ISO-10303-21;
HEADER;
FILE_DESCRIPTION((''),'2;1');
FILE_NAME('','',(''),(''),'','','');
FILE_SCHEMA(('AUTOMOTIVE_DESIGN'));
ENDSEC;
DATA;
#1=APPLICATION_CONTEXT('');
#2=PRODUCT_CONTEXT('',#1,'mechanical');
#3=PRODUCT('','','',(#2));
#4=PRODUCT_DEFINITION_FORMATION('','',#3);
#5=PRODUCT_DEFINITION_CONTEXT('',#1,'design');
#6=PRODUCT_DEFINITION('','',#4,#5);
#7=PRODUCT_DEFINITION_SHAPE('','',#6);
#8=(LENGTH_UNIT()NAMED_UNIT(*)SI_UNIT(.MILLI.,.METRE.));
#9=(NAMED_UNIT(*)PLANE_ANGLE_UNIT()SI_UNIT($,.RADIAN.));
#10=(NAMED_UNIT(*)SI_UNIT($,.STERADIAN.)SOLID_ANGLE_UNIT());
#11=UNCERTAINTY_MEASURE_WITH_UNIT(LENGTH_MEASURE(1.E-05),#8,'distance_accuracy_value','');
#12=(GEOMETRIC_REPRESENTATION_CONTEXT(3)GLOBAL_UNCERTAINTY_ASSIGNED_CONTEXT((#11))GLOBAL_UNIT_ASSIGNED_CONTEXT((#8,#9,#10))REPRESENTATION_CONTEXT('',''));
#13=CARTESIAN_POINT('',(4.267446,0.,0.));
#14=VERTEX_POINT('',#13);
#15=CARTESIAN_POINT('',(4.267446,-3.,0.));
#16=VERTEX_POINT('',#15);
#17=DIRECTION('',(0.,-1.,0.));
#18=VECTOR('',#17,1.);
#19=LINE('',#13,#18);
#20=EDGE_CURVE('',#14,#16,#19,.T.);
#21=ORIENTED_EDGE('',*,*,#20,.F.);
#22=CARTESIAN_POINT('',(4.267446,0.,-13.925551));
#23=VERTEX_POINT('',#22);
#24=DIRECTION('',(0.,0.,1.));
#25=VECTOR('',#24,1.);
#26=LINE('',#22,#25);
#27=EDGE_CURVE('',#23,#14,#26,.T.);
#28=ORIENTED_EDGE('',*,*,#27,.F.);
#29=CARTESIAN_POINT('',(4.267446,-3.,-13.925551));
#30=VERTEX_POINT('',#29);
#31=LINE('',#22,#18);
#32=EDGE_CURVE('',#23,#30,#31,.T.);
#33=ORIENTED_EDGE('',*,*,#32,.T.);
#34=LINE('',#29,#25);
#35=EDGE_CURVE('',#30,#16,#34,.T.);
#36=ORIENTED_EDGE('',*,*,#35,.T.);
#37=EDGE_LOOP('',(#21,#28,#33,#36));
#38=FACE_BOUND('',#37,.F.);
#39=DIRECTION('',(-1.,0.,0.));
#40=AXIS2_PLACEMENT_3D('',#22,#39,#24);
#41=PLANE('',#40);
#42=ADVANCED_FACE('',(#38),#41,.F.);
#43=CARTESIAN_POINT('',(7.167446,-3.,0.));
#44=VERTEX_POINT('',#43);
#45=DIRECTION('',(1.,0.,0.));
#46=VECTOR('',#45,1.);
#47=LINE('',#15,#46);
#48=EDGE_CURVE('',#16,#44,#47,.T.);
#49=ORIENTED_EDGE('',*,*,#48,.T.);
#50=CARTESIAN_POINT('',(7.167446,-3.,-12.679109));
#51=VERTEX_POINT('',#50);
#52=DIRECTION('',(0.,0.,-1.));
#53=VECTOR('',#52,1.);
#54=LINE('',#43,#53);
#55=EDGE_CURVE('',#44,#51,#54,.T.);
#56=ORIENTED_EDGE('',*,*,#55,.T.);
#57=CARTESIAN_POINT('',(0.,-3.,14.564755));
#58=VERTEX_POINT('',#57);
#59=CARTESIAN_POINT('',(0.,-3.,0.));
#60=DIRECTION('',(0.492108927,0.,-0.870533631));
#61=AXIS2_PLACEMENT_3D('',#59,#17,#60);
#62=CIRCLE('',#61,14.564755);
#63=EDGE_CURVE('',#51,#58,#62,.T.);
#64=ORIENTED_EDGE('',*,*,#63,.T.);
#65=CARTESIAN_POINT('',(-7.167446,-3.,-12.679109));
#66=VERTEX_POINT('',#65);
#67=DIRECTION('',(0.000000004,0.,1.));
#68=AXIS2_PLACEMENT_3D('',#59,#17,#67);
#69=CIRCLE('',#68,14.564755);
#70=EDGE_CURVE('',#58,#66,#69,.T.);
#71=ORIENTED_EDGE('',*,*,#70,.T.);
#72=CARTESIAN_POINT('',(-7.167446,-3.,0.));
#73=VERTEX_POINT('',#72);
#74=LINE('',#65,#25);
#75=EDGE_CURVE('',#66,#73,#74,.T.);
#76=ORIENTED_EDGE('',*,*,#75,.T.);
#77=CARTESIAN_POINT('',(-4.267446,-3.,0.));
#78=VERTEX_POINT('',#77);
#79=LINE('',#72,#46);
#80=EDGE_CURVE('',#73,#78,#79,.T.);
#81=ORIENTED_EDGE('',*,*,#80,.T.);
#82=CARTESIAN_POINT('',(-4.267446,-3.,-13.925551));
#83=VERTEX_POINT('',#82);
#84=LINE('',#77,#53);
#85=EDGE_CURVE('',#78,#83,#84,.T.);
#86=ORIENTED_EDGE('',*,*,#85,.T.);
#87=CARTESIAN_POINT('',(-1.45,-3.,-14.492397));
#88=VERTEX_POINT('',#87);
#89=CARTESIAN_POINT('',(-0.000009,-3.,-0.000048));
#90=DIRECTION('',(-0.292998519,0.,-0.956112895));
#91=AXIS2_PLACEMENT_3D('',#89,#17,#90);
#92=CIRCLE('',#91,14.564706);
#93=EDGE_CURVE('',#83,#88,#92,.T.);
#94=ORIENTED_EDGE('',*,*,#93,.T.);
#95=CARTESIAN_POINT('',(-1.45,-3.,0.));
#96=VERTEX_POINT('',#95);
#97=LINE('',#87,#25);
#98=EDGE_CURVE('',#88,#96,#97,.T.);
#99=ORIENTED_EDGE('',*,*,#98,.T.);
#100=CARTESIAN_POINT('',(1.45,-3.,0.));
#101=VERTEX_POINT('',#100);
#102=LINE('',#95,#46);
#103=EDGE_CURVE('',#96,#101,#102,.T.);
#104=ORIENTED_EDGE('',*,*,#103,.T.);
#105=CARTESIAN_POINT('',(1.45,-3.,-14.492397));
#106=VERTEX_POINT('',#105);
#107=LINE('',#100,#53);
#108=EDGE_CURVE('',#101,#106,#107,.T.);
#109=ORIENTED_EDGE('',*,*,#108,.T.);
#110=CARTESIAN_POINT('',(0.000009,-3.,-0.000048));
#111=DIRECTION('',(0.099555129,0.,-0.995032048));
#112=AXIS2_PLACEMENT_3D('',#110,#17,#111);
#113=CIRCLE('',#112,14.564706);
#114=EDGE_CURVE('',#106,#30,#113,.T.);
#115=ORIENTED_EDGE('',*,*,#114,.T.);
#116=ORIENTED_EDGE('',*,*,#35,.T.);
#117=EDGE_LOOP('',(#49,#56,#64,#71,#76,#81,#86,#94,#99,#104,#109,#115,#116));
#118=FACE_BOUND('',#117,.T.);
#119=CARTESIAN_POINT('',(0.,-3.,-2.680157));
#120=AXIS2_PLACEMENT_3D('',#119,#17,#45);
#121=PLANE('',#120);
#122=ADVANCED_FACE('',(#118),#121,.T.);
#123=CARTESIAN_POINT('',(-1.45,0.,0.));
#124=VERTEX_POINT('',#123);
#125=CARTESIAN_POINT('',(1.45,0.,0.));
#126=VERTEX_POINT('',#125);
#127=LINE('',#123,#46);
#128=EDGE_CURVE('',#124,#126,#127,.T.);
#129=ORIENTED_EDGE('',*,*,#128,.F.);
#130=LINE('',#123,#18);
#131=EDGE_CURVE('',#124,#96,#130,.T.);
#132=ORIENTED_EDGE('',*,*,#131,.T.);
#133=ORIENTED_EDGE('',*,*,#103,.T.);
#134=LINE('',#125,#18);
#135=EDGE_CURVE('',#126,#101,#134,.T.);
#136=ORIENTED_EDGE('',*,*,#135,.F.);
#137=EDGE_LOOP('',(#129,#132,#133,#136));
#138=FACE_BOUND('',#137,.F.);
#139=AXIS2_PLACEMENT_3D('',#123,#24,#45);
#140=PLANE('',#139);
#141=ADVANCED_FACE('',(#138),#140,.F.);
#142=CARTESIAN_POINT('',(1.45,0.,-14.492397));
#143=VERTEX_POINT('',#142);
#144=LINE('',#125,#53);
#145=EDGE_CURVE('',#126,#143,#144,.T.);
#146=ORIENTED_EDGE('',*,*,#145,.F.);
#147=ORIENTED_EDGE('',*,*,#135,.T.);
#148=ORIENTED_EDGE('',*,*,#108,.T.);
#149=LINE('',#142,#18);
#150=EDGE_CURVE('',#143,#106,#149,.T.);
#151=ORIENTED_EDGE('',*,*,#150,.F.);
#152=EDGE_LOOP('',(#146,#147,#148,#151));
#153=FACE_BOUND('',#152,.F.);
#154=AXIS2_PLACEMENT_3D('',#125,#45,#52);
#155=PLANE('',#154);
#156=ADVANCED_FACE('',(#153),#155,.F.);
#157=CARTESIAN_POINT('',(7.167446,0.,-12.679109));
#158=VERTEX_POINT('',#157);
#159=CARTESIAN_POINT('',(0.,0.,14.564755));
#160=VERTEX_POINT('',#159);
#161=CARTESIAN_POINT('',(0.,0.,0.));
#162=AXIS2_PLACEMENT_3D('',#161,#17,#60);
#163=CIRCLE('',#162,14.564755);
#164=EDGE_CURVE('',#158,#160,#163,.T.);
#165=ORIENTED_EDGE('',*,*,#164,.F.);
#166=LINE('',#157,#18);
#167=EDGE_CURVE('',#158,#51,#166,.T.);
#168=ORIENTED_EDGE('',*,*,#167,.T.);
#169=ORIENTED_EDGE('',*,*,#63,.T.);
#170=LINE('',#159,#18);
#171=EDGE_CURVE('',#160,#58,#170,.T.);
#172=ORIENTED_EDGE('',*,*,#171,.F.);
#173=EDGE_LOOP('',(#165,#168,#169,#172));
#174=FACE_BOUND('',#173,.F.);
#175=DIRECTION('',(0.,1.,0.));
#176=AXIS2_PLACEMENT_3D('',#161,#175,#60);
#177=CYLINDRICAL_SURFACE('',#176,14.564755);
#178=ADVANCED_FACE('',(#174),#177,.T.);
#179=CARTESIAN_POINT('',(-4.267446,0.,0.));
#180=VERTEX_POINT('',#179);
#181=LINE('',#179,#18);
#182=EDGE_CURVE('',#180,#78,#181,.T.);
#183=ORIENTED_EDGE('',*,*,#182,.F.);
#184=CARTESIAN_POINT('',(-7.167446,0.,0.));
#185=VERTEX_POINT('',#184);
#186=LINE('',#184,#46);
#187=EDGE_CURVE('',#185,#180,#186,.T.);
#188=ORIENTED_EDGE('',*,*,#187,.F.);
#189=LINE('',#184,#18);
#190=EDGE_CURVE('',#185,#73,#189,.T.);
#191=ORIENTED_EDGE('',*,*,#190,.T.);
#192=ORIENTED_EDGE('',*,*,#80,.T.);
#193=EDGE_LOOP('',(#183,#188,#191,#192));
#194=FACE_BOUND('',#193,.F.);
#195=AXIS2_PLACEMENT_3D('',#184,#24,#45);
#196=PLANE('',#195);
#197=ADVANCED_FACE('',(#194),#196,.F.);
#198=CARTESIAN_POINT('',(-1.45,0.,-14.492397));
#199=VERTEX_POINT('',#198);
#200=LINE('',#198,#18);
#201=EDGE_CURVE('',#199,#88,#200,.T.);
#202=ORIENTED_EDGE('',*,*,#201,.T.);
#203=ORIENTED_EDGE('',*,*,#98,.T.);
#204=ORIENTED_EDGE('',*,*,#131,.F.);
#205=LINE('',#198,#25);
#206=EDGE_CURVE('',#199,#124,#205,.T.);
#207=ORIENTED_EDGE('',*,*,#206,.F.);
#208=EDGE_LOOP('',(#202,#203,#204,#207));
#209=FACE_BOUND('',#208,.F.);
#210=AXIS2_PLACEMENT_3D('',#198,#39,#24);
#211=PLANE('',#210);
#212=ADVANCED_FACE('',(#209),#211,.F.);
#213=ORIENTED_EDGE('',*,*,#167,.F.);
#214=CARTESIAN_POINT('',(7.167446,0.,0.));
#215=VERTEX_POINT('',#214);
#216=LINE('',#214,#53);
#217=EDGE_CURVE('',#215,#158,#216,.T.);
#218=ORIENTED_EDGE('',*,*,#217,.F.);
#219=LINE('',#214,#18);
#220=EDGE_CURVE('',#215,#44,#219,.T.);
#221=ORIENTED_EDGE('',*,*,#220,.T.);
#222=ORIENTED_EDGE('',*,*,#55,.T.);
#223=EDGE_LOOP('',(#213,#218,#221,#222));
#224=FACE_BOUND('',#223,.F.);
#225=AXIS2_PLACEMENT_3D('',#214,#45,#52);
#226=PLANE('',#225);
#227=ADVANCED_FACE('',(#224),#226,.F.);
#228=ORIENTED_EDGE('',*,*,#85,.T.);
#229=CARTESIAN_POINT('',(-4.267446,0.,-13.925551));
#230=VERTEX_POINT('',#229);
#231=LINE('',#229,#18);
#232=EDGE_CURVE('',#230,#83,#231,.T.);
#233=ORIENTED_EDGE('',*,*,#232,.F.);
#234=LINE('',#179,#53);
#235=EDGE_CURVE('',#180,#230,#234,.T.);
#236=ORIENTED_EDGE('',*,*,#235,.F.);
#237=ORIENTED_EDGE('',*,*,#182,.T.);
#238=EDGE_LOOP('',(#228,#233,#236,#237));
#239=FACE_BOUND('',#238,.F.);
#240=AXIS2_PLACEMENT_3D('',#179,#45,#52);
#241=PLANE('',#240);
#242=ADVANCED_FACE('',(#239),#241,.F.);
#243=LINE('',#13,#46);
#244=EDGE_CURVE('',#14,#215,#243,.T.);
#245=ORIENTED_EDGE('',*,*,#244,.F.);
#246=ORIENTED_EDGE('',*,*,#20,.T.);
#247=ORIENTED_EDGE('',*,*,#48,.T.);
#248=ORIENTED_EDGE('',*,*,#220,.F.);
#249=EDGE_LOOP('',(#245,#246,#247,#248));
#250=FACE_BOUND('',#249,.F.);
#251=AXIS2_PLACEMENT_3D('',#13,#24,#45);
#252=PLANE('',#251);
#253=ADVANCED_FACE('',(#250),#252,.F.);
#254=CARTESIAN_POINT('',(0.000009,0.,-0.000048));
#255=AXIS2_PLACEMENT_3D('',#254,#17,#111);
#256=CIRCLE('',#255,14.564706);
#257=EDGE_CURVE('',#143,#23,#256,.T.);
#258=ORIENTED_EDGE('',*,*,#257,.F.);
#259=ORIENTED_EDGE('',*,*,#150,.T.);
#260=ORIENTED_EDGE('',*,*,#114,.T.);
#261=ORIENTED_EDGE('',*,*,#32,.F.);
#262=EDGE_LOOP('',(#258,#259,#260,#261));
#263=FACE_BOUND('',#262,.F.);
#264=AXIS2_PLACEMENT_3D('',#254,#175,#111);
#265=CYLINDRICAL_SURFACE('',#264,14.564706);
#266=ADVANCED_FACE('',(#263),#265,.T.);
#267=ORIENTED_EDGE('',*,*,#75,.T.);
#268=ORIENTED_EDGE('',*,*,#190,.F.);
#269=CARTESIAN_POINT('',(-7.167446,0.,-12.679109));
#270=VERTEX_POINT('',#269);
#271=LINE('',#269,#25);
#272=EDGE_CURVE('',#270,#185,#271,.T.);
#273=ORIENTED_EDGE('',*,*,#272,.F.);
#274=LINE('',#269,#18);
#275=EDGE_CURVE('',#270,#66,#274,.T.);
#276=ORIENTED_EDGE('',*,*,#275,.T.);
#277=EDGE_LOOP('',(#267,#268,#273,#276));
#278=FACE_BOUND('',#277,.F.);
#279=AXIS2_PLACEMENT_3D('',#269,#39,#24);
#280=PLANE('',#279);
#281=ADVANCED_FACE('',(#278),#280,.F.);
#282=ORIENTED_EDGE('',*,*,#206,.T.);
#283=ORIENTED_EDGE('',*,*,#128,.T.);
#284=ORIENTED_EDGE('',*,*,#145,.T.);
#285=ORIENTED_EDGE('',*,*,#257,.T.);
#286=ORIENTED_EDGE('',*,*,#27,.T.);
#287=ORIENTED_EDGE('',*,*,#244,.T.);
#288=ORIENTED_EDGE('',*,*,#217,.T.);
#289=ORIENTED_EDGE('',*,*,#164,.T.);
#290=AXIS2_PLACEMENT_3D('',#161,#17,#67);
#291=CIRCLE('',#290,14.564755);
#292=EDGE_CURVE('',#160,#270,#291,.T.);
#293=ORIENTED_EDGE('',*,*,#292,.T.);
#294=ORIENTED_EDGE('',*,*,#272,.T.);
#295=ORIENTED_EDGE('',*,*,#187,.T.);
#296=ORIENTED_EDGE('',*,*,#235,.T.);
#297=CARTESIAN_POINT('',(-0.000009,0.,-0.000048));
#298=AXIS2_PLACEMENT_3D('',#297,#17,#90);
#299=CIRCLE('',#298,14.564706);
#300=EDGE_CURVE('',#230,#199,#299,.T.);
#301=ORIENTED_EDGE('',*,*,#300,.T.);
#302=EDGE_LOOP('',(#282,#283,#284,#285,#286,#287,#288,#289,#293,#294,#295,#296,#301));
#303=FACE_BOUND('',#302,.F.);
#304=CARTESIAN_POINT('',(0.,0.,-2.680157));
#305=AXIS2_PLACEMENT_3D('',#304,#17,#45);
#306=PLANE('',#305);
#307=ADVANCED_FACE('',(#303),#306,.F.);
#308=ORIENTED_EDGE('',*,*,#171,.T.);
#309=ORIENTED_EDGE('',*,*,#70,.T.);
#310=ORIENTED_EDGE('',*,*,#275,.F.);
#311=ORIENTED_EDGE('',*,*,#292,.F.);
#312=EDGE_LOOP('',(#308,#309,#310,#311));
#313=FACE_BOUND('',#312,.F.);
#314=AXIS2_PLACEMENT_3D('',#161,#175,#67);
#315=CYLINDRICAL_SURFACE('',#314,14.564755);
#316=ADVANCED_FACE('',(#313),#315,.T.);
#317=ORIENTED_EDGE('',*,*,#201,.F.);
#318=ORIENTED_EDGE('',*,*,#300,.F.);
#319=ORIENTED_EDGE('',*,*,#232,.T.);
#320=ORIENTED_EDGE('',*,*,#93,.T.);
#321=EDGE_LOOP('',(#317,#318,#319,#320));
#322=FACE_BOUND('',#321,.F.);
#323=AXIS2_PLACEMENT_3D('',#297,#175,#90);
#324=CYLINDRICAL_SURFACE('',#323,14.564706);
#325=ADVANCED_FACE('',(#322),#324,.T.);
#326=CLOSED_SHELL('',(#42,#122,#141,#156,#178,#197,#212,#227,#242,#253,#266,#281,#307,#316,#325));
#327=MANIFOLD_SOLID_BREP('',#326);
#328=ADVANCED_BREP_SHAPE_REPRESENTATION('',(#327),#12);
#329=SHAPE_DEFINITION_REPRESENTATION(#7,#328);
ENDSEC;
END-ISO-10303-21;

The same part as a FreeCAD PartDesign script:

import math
import FreeCAD as App
import Part
import Sketcher

V = App.Vector
Q = App.Units.Quantity

doc = App.newDocument("Part")
body = doc.addObject("PartDesign::Body", "Body")

# Sketch on XZ plane
sketch1 = doc.addObject("Sketcher::SketchObject", "Sketch")
body.addObject(sketch1)
sketch1.AttachmentSupport = (doc.XZ_Plane, [""])
sketch1.MapMode = "FlatFace"
sketch1.addGeometry(Part.ArcOfCircle(Part.Circle(V(0, 0, 0), V(0, 0, 1), 14.564755), math.radians(-60.52071), math.radians(90)), False)
sketch1.addGeometry(Part.ArcOfCircle(Part.Circle(V(0, 0, 0), V(0, 0, 1), 14.564755), math.radians(90), math.radians(240.52071)), False)
sketch1.addGeometry(Part.LineSegment(V(-7.167446, -12.679109, 0), V(-7.167446, 0, 0)), False)
sketch1.addGeometry(Part.LineSegment(V(-7.167446, 0, 0), V(-4.267446, 0, 0)), False)
sketch1.addGeometry(Part.LineSegment(V(-4.267446, 0, 0), V(-4.267446, -13.925551, 0)), False)
sketch1.addGeometry(Part.ArcOfCircle(Part.Circle(V(-0.000009, -0.000048, 0), V(0, 0, 1), 14.564706), math.radians(-107.037559), math.radians(-95.713553)), False)
sketch1.addGeometry(Part.LineSegment(V(-1.45, -14.492397, 0), V(-1.45, 0, 0)), False)
sketch1.addGeometry(Part.LineSegment(V(-1.45, 0, 0), V(1.45, 0, 0)), False)
sketch1.addGeometry(Part.LineSegment(V(1.45, 0, 0), V(1.45, -14.492397, 0)), False)
sketch1.addGeometry(Part.ArcOfCircle(Part.Circle(V(0.000009, -0.000048, 0), V(0, 0, 1), 14.564706), math.radians(-84.286447), math.radians(-72.962441)), False)
sketch1.addGeometry(Part.LineSegment(V(4.267446, -13.925551, 0), V(4.267446, 0, 0)), False)
sketch1.addGeometry(Part.LineSegment(V(4.267446, 0, 0), V(7.167446, 0, 0)), False)
sketch1.addGeometry(Part.LineSegment(V(7.167446, 0, 0), V(7.167446, -12.679109, 0)), False)
sketch1.addConstraint(Sketcher.Constraint("Tangent", 0, 2, 1, 1))
sketch1.addConstraint(Sketcher.Constraint("Coincident", 1, 2, 2, 1))
sketch1.addConstraint(Sketcher.Constraint("Coincident", 2, 2, 3, 1))
sketch1.addConstraint(Sketcher.Constraint("Coincident", 3, 2, 4, 1))
sketch1.addConstraint(Sketcher.Constraint("Coincident", 4, 2, 5, 1))
sketch1.addConstraint(Sketcher.Constraint("Coincident", 5, 2, 6, 1))
sketch1.addConstraint(Sketcher.Constraint("Coincident", 6, 2, 7, 1))
sketch1.addConstraint(Sketcher.Constraint("Coincident", 7, 2, 8, 1))
sketch1.addConstraint(Sketcher.Constraint("Coincident", 8, 2, 9, 1))
sketch1.addConstraint(Sketcher.Constraint("Coincident", 9, 2, 10, 1))
sketch1.addConstraint(Sketcher.Constraint("Coincident", 10, 2, 11, 1))
sketch1.addConstraint(Sketcher.Constraint("Coincident", 11, 2, 12, 1))
sketch1.addConstraint(Sketcher.Constraint("Coincident", 12, 2, 0, 1))
sketch1.addConstraint(Sketcher.Constraint("Vertical", 2))
sketch1.addConstraint(Sketcher.Constraint("Horizontal", 3))
sketch1.addConstraint(Sketcher.Constraint("Vertical", 4))
sketch1.addConstraint(Sketcher.Constraint("Vertical", 6))
sketch1.addConstraint(Sketcher.Constraint("Horizontal", 7))
sketch1.addConstraint(Sketcher.Constraint("Vertical", 8))
sketch1.addConstraint(Sketcher.Constraint("Vertical", 10))
sketch1.addConstraint(Sketcher.Constraint("Horizontal", 11))
sketch1.addConstraint(Sketcher.Constraint("Vertical", 12))
sketch1.addConstraint(Sketcher.Constraint("Coincident", 0, 3, -1, 1))
sketch1.addConstraint(Sketcher.Constraint("Equal", 0, 1))
sketch1.addConstraint(Sketcher.Constraint("Equal", 5, 9))
sketch1.addConstraint(Sketcher.Constraint("Symmetric", 6, 2, 7, 2, -1, 1))
sketch1.addConstraint(Sketcher.Constraint("Symmetric", 3, 2, 10, 2, -1, 1))
sketch1.addConstraint(Sketcher.Constraint("Symmetric", 5, 3, 9, 3, -2))
sketch1.addConstraint(Sketcher.Constraint("Symmetric", 2, 2, 11, 2, -2))
sketch1.addConstraint(Sketcher.Constraint("PointOnObject", 0, 2, -2))
sketch1.addConstraint(Sketcher.Constraint("Equal", 3, 7))
sketch1.addConstraint(Sketcher.Constraint("DistanceX", 3, 1, 3, 2, Q("2.9 mm")))
sketch1.addConstraint(Sketcher.Constraint("Radius", 0, Q("14.564755 mm")))
sketch1.addConstraint(Sketcher.Constraint("Radius", 5, Q("14.564706 mm")))
sketch1.addConstraint(Sketcher.Constraint("DistanceY", 2, 1, 2, 2, Q("12.679109 mm")))
sketch1.addConstraint(Sketcher.Constraint("DistanceY", 4, 2, 4, 1, Q("13.925551 mm")))
sketch1.addConstraint(Sketcher.Constraint("DistanceY", 6, 1, 6, 2, Q("14.492397 mm")))
pad1 = doc.addObject("PartDesign::Pad", "Pad")
body.addObject(pad1)
pad1.Profile = sketch1
pad1.Length = 3

doc.recompute()
